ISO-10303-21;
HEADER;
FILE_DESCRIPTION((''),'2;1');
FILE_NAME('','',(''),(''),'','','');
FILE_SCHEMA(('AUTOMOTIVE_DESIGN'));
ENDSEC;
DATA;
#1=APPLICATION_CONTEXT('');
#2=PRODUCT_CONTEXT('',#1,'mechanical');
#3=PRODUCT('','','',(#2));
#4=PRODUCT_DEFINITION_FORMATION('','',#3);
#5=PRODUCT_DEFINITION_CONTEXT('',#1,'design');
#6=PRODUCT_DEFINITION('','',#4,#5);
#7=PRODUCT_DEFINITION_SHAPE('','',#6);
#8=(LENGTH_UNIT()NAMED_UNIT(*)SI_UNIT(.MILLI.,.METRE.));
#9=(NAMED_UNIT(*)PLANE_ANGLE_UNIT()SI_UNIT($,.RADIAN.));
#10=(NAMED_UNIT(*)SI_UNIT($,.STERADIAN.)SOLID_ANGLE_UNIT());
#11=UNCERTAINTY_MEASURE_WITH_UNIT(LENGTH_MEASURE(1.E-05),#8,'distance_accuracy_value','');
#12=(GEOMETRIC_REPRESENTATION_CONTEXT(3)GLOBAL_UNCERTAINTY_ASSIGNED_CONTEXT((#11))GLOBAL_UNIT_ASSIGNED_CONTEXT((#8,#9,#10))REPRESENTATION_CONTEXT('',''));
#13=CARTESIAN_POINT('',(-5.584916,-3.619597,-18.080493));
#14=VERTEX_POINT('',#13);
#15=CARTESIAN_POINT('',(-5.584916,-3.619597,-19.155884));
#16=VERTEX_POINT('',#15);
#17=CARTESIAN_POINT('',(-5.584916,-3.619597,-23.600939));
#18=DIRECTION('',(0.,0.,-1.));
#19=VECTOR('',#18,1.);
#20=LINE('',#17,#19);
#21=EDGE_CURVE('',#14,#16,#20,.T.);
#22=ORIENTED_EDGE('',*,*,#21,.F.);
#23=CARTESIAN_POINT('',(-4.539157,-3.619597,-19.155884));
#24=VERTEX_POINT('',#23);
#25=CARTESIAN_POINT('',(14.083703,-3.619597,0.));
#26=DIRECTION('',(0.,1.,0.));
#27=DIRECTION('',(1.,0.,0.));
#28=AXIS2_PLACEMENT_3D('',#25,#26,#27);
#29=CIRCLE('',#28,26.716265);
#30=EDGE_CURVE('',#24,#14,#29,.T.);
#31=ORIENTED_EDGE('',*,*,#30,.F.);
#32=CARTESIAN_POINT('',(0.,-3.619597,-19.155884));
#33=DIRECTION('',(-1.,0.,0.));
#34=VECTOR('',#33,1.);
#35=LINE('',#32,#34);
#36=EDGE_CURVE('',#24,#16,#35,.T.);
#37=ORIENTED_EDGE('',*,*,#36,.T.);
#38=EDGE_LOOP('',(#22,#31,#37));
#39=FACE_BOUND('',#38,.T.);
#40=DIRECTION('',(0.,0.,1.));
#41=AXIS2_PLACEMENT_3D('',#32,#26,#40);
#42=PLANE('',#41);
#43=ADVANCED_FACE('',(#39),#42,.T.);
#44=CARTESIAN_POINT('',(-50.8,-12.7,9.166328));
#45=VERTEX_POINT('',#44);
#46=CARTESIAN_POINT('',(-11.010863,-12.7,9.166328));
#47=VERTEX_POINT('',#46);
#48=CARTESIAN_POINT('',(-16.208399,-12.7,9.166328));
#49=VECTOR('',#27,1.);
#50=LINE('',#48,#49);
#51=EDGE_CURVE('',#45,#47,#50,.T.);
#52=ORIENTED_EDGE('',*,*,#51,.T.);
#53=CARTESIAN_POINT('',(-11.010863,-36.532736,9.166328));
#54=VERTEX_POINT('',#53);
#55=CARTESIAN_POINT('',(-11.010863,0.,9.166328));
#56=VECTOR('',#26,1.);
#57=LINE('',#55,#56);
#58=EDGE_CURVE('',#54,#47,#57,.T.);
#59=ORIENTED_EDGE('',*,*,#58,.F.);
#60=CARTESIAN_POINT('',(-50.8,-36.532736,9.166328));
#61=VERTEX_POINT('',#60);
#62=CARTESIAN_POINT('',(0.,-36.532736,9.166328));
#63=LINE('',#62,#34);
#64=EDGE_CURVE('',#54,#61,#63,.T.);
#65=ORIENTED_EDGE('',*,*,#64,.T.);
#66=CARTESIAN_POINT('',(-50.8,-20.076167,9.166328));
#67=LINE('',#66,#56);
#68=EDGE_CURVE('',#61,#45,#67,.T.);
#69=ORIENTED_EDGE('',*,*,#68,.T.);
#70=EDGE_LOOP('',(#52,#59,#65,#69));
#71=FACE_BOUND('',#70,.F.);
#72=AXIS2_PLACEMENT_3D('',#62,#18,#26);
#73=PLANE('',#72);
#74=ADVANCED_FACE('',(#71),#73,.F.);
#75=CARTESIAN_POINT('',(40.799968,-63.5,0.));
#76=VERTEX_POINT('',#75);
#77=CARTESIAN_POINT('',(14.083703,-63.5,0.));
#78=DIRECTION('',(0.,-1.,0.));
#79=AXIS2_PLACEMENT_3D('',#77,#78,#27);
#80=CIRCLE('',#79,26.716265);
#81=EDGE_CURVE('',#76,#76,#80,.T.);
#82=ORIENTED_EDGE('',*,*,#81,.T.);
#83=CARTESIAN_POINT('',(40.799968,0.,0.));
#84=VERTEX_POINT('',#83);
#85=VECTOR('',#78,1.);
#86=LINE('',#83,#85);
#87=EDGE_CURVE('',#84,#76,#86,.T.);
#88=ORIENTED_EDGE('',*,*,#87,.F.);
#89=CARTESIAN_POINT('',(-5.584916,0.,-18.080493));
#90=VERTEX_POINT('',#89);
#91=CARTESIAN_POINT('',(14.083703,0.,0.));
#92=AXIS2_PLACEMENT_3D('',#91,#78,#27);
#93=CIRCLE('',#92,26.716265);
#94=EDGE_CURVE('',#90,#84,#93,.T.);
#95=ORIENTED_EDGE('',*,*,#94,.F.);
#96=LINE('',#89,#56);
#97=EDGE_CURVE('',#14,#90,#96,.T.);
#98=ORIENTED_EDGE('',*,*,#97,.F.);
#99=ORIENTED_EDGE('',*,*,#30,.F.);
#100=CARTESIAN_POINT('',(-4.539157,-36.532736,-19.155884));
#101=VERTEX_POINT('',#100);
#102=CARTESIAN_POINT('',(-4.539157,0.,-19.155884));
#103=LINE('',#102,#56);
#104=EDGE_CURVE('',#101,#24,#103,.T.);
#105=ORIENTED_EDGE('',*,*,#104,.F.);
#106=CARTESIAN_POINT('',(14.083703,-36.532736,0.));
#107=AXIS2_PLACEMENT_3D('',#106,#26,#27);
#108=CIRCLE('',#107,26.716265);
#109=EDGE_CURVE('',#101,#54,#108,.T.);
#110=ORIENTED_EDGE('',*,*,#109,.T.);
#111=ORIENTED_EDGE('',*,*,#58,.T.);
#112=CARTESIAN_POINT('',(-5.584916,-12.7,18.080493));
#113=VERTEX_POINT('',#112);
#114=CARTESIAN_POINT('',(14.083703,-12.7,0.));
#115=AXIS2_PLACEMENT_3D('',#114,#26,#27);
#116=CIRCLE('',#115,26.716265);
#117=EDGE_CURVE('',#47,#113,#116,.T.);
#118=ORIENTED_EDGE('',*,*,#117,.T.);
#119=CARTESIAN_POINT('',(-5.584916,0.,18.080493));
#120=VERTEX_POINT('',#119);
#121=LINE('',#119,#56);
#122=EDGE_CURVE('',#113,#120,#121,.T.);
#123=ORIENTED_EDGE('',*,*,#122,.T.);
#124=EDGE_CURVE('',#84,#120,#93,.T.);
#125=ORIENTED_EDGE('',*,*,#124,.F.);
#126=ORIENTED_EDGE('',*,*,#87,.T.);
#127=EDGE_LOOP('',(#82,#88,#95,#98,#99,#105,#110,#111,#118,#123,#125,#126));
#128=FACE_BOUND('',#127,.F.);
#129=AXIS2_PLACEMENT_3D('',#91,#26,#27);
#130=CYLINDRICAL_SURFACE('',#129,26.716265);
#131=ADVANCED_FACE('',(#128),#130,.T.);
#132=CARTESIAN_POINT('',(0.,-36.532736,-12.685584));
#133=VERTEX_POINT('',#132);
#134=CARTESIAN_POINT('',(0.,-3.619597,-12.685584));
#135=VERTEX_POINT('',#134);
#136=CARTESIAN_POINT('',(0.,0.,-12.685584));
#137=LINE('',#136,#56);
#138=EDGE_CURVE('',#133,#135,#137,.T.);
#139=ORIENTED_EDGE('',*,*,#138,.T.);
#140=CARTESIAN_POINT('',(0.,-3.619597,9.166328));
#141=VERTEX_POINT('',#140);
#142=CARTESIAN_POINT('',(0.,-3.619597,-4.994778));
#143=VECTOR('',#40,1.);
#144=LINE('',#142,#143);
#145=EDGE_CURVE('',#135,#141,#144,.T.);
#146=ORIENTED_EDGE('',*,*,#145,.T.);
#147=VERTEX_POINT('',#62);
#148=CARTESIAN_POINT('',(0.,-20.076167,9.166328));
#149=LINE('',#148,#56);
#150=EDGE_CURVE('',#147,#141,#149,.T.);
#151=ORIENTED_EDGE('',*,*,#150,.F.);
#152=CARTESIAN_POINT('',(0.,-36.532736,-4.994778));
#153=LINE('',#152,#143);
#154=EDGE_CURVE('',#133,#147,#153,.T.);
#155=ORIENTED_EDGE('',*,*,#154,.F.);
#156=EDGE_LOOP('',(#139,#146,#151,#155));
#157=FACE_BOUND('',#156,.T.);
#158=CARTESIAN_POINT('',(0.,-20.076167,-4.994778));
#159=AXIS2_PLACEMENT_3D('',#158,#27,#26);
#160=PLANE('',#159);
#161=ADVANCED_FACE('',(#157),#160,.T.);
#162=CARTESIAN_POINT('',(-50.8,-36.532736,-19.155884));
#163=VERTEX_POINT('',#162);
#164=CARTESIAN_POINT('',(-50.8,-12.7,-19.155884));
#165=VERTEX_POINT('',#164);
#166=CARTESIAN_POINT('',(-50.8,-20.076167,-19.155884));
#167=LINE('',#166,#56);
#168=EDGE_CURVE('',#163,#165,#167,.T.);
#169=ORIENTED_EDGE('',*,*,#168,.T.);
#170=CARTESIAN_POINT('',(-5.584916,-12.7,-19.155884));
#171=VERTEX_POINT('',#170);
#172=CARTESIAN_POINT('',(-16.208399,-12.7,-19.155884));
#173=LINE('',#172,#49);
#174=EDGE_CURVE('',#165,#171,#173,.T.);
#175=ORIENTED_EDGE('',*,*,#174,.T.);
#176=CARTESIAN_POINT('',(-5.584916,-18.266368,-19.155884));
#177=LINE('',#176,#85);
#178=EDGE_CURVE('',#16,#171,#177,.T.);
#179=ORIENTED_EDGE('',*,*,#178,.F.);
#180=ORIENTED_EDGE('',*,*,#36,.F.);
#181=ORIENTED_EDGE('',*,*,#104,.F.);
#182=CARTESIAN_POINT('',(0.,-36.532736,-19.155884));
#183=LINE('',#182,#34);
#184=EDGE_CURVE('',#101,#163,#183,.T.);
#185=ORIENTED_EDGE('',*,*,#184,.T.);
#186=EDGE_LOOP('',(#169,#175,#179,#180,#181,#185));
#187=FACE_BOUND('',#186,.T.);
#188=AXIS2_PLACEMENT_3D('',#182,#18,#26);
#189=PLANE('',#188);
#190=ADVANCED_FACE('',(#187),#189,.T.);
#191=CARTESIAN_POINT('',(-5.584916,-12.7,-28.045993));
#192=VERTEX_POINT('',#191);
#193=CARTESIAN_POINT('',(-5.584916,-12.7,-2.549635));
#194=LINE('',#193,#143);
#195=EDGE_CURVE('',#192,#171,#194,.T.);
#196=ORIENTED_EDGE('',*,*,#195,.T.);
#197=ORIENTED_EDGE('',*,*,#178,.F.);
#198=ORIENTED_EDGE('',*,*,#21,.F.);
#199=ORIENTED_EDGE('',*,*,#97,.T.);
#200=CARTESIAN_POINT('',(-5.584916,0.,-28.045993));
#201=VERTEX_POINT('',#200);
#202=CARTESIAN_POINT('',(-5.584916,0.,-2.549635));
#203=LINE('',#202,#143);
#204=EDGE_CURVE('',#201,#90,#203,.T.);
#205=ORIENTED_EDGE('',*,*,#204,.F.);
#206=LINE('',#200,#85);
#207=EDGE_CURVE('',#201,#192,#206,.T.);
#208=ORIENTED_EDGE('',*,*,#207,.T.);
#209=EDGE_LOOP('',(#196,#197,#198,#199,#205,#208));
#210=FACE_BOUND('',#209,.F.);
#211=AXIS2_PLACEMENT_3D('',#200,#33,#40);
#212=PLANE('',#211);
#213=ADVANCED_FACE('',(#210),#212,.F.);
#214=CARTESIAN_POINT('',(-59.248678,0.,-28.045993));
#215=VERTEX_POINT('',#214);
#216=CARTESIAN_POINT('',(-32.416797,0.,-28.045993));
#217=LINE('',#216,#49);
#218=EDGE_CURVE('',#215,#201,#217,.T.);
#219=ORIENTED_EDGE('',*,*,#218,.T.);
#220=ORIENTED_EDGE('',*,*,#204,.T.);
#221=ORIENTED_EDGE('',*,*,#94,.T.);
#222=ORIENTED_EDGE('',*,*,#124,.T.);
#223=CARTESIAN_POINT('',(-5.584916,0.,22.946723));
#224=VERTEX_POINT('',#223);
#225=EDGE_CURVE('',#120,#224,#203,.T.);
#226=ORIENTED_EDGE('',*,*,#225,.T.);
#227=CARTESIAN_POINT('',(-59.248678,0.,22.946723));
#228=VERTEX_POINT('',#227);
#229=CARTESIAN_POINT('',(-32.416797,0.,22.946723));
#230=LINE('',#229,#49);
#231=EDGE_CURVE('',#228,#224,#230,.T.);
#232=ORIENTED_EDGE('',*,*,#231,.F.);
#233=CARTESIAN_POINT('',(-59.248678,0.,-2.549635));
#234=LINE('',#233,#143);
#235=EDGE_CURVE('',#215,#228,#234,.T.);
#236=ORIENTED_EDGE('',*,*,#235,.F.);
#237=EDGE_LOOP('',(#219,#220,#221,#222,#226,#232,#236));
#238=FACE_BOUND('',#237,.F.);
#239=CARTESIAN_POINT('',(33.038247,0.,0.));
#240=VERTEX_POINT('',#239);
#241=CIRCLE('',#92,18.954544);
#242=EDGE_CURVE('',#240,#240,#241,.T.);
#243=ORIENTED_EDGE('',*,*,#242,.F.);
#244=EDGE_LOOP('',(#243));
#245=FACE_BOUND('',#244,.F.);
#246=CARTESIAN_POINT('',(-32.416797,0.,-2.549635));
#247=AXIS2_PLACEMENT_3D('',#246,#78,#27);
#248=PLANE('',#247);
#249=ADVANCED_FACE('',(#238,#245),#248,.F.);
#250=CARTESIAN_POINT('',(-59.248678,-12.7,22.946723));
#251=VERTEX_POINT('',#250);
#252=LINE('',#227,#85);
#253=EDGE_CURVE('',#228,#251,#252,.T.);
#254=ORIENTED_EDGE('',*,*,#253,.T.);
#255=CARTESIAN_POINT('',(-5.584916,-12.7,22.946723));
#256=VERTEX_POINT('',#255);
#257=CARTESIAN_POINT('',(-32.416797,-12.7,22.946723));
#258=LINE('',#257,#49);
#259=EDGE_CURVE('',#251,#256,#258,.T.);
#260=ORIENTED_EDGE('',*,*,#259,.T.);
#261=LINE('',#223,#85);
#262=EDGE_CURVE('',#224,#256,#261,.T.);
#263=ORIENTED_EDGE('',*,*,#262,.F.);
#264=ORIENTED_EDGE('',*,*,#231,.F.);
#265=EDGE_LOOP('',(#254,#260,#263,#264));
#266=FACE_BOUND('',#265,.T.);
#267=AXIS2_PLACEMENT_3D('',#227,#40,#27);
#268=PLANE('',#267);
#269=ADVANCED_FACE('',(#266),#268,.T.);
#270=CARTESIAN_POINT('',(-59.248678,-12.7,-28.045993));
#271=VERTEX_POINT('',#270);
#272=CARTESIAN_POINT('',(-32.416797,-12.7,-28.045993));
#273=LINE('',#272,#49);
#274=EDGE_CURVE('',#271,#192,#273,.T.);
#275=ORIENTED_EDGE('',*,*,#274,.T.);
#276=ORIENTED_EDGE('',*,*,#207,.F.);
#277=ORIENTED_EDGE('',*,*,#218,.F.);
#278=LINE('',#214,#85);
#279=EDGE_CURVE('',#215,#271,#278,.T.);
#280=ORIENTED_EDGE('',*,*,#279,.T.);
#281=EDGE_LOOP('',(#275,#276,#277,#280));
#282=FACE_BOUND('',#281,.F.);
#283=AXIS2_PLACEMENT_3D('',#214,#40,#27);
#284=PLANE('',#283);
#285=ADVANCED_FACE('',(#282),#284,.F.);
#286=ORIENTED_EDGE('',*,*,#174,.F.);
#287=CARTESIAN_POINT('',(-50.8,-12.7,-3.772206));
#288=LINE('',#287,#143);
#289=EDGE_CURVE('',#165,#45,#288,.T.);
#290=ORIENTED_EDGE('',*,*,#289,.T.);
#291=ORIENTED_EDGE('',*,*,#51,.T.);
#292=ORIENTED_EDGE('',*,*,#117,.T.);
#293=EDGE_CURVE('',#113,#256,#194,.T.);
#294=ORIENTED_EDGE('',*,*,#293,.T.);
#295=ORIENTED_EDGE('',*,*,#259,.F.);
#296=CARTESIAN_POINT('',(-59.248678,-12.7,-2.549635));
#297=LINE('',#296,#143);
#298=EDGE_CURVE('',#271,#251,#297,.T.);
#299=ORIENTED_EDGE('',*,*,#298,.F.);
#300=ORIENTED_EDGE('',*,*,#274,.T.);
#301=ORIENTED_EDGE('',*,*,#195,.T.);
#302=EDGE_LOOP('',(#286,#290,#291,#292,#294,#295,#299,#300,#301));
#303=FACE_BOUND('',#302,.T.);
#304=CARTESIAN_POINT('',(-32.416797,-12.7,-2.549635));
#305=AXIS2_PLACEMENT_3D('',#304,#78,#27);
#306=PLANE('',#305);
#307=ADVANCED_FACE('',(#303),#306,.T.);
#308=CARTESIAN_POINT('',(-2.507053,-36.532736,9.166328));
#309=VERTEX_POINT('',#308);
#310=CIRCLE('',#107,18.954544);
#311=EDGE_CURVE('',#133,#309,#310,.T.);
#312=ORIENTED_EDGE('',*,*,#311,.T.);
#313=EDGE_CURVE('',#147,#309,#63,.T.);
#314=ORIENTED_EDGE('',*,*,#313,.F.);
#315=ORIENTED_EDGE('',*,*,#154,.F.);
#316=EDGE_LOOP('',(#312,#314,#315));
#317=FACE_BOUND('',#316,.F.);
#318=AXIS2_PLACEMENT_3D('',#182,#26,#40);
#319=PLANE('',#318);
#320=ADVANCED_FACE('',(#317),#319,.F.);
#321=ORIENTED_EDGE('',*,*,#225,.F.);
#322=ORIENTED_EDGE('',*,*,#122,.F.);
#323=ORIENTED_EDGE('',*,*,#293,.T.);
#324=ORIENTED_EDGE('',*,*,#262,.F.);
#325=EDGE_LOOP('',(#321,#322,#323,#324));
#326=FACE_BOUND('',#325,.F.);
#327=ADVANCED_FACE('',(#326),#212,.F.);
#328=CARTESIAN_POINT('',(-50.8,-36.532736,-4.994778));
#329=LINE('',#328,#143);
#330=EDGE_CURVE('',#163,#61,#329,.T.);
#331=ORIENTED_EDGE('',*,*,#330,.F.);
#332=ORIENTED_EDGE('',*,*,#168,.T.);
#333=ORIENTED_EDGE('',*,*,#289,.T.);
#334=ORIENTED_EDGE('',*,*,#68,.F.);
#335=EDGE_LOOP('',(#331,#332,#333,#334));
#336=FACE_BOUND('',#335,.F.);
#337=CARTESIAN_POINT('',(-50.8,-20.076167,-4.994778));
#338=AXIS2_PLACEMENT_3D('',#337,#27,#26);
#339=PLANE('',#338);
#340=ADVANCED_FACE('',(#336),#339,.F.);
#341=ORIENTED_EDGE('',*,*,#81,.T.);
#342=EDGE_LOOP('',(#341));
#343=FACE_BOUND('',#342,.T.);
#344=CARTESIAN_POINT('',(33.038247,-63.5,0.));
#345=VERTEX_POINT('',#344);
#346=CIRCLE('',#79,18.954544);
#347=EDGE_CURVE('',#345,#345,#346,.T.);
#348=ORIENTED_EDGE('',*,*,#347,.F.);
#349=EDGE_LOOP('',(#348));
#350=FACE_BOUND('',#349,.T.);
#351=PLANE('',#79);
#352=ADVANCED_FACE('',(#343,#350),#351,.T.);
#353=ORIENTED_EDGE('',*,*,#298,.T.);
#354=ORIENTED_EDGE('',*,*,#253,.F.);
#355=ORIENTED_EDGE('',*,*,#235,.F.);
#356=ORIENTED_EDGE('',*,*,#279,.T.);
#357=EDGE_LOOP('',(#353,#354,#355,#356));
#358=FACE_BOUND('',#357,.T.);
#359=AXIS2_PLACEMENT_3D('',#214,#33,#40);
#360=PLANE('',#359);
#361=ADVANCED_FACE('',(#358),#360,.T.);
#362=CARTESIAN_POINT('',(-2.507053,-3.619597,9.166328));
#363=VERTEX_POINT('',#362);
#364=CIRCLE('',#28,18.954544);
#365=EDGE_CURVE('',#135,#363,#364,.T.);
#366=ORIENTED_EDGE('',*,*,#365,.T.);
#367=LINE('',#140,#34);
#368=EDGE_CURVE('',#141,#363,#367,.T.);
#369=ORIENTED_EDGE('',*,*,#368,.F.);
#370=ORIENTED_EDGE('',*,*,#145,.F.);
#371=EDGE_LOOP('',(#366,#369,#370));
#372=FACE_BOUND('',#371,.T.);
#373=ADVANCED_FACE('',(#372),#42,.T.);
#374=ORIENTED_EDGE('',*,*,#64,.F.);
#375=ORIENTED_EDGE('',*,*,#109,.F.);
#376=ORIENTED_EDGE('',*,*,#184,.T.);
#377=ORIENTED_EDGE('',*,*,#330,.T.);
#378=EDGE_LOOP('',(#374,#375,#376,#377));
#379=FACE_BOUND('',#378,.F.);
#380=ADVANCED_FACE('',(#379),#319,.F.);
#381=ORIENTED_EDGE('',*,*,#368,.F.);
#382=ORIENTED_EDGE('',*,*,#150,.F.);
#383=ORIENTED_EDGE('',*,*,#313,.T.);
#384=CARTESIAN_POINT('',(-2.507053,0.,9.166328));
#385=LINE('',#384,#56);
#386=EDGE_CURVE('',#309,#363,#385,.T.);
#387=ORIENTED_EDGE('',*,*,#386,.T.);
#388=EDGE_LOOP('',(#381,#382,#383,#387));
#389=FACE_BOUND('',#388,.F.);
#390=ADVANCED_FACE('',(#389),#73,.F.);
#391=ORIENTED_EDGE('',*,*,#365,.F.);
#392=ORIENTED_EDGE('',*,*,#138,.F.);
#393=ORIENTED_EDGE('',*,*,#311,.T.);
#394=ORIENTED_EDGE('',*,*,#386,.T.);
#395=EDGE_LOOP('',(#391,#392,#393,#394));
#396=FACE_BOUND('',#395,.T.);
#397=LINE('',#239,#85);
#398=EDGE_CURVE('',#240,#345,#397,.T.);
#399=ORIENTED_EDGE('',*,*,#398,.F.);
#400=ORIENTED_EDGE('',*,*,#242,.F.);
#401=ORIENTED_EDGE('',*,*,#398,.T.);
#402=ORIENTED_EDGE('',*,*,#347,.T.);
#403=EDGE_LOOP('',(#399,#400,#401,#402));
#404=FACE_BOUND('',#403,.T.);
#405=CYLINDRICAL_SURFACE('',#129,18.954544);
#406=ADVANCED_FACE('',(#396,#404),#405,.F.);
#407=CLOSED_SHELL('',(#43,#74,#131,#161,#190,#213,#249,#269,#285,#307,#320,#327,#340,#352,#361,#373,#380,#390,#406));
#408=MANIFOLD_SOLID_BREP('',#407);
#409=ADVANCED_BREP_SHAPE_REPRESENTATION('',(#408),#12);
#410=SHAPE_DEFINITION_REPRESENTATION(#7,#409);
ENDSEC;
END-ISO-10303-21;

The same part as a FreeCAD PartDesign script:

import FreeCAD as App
import Part
import Sketcher
Q = App.Units.Quantity

doc = App.newDocument("Part")
params = doc.addObject("Spreadsheet::Sheet", "Params")
for row, (alias, value) in enumerate([
    ("pad1_length", "2.5 in"),
    ("pad2_length", "0.5 in"),
    ("pad3_length", "2 in"),
], start=1):
    params.set(f"A{row}", alias)
    params.set(f"B{row}", "=" + value)
    params.setAlias(f"B{row}", alias)

body = doc.addObject("PartDesign::Body", "Body")

sketch1 = doc.addObject("Sketcher::SketchObject", "Sketch")
body.addObject(sketch1)
sketch1.AttachmentSupport = (doc.XZ_Plane, [""])
sketch1.MapMode = "FlatFace"
sketch1.addGeometry([
    Part.Circle(App.Vector(14.083703, 0, 0), App.Vector(0, 0, 1), 26.716265),
    Part.Circle(App.Vector(14.083703, 0, 0), App.Vector(0, 0, 1), 18.954544),
], False)
sketch1.addConstraint([
    Sketcher.Constraint("Coincident", 1, 3, 0, 3),
    Sketcher.Constraint("PointOnObject", 0, 3, -1),
    Sketcher.Constraint("Diameter", 0, Q("53.43253 mm")),
    Sketcher.Constraint("Diameter", 1, Q("37.909088 mm")),
    Sketcher.Constraint("DistanceX", -1, 1, 0, 3, Q("14.083703 mm")),
])
pad1 = doc.addObject("PartDesign::Pad", "Pad")
body.addObject(pad1)
pad1.Profile = sketch1
pad1.setExpression("Length", "Params.pad1_length")

sketch2 = doc.addObject("Sketcher::SketchObject", "Sketch001")
body.addObject(sketch2)
sketch2.AttachmentSupport = (doc.XZ_Plane, [""])
sketch2.MapMode = "FlatFace"
sketch2.addGeometry([
    Part.LineSegment(App.Vector(-59.248678, 22.946723, 0), App.Vector(-59.248678, -28.045993, 0)),
    Part.LineSegment(App.Vector(-59.248678, -28.045993, 0), App.Vector(-5.584916, -28.045993, 0)),
    Part.LineSegment(App.Vector(-5.584916, -28.045993, 0), App.Vector(-5.584916, 22.946723, 0)),
    Part.LineSegment(App.Vector(-5.584916, 22.946723, 0), App.Vector(-59.248678, 22.946723, 0)),
], False)
sketch2.addConstraint([
    Sketcher.Constraint("Coincident", 0, 2, 1, 1),
    Sketcher.Constraint("Coincident", 1, 2, 2, 1),
    Sketcher.Constraint("Coincident", 2, 2, 3, 1),
    Sketcher.Constraint("Coincident", 3, 2, 0, 1),
    Sketcher.Constraint("Vertical", 0),
    Sketcher.Constraint("Horizontal", 1),
    Sketcher.Constraint("Vertical", 2),
    Sketcher.Constraint("Horizontal", 3),
    Sketcher.Constraint("DistanceX", 1, 1, 1, 2, Q("53.663762 mm")),
    Sketcher.Constraint("DistanceY", 0, 2, 0, 1, Q("50.992716 mm")),
    Sketcher.Constraint("DistanceX", 0, 2, -1, 1, Q("59.248678 mm")),
    Sketcher.Constraint("DistanceY", 0, 2, -1, 1, Q("28.045993 mm")),
])
pad2 = doc.addObject("PartDesign::Pad", "Pad001")
body.addObject(pad2)
pad2.Profile = sketch2
pad2.setExpression("Length", "Params.pad2_length")

sketch3 = doc.addObject("Sketcher::SketchObject", "Sketch002")
body.addObject(sketch3)
sketch3.AttachmentSupport = (doc.YZ_Plane, [""])
sketch3.MapMode = "FlatFace"
sketch3.addGeometry([
    Part.LineSegment(App.Vector(-36.532736, 9.166328, 0), App.Vector(-36.532736, -19.155884, 0)),
    Part.LineSegment(App.Vector(-36.532736, -19.155884, 0), App.Vector(-3.619597, -19.155884, 0)),
    Part.LineSegment(App.Vector(-3.619597, -19.155884, 0), App.Vector(-3.619597, 9.166328, 0)),
    Part.LineSegment(App.Vector(-3.619597, 9.166328, 0), App.Vector(-36.532736, 9.166328, 0)),
], False)
sketch3.addConstraint([
    Sketcher.Constraint("Coincident", 0, 2, 1, 1),
    Sketcher.Constraint("Coincident", 1, 2, 2, 1),
    Sketcher.Constraint("Coincident", 2, 2, 3, 1),
    Sketcher.Constraint("Coincident", 3, 2, 0, 1),
    Sketcher.Constraint("Vertical", 0),
    Sketcher.Constraint("Horizontal", 1),
    Sketcher.Constraint("Vertical", 2),
    Sketcher.Constraint("Horizontal", 3),
    Sketcher.Constraint("DistanceX", 1, 1, 1, 2, Q("32.913139 mm")),
    Sketcher.Constraint("DistanceY", 0, 2, 0, 1, Q("28.322212 mm")),
    Sketcher.Constraint("DistanceX", 0, 2, -1, 1, Q("36.532736 mm")),
    Sketcher.Constraint("DistanceY", 0, 2, -1, 1, Q("19.155884 mm")),
])
pad3 = doc.addObject("PartDesign::Pad", "Pad002")
body.addObject(pad3)
pad3.Profile = sketch3
pad3.setExpression("Length", "Params.pad3_length")
pad3.Reversed = True

doc.recompute()
